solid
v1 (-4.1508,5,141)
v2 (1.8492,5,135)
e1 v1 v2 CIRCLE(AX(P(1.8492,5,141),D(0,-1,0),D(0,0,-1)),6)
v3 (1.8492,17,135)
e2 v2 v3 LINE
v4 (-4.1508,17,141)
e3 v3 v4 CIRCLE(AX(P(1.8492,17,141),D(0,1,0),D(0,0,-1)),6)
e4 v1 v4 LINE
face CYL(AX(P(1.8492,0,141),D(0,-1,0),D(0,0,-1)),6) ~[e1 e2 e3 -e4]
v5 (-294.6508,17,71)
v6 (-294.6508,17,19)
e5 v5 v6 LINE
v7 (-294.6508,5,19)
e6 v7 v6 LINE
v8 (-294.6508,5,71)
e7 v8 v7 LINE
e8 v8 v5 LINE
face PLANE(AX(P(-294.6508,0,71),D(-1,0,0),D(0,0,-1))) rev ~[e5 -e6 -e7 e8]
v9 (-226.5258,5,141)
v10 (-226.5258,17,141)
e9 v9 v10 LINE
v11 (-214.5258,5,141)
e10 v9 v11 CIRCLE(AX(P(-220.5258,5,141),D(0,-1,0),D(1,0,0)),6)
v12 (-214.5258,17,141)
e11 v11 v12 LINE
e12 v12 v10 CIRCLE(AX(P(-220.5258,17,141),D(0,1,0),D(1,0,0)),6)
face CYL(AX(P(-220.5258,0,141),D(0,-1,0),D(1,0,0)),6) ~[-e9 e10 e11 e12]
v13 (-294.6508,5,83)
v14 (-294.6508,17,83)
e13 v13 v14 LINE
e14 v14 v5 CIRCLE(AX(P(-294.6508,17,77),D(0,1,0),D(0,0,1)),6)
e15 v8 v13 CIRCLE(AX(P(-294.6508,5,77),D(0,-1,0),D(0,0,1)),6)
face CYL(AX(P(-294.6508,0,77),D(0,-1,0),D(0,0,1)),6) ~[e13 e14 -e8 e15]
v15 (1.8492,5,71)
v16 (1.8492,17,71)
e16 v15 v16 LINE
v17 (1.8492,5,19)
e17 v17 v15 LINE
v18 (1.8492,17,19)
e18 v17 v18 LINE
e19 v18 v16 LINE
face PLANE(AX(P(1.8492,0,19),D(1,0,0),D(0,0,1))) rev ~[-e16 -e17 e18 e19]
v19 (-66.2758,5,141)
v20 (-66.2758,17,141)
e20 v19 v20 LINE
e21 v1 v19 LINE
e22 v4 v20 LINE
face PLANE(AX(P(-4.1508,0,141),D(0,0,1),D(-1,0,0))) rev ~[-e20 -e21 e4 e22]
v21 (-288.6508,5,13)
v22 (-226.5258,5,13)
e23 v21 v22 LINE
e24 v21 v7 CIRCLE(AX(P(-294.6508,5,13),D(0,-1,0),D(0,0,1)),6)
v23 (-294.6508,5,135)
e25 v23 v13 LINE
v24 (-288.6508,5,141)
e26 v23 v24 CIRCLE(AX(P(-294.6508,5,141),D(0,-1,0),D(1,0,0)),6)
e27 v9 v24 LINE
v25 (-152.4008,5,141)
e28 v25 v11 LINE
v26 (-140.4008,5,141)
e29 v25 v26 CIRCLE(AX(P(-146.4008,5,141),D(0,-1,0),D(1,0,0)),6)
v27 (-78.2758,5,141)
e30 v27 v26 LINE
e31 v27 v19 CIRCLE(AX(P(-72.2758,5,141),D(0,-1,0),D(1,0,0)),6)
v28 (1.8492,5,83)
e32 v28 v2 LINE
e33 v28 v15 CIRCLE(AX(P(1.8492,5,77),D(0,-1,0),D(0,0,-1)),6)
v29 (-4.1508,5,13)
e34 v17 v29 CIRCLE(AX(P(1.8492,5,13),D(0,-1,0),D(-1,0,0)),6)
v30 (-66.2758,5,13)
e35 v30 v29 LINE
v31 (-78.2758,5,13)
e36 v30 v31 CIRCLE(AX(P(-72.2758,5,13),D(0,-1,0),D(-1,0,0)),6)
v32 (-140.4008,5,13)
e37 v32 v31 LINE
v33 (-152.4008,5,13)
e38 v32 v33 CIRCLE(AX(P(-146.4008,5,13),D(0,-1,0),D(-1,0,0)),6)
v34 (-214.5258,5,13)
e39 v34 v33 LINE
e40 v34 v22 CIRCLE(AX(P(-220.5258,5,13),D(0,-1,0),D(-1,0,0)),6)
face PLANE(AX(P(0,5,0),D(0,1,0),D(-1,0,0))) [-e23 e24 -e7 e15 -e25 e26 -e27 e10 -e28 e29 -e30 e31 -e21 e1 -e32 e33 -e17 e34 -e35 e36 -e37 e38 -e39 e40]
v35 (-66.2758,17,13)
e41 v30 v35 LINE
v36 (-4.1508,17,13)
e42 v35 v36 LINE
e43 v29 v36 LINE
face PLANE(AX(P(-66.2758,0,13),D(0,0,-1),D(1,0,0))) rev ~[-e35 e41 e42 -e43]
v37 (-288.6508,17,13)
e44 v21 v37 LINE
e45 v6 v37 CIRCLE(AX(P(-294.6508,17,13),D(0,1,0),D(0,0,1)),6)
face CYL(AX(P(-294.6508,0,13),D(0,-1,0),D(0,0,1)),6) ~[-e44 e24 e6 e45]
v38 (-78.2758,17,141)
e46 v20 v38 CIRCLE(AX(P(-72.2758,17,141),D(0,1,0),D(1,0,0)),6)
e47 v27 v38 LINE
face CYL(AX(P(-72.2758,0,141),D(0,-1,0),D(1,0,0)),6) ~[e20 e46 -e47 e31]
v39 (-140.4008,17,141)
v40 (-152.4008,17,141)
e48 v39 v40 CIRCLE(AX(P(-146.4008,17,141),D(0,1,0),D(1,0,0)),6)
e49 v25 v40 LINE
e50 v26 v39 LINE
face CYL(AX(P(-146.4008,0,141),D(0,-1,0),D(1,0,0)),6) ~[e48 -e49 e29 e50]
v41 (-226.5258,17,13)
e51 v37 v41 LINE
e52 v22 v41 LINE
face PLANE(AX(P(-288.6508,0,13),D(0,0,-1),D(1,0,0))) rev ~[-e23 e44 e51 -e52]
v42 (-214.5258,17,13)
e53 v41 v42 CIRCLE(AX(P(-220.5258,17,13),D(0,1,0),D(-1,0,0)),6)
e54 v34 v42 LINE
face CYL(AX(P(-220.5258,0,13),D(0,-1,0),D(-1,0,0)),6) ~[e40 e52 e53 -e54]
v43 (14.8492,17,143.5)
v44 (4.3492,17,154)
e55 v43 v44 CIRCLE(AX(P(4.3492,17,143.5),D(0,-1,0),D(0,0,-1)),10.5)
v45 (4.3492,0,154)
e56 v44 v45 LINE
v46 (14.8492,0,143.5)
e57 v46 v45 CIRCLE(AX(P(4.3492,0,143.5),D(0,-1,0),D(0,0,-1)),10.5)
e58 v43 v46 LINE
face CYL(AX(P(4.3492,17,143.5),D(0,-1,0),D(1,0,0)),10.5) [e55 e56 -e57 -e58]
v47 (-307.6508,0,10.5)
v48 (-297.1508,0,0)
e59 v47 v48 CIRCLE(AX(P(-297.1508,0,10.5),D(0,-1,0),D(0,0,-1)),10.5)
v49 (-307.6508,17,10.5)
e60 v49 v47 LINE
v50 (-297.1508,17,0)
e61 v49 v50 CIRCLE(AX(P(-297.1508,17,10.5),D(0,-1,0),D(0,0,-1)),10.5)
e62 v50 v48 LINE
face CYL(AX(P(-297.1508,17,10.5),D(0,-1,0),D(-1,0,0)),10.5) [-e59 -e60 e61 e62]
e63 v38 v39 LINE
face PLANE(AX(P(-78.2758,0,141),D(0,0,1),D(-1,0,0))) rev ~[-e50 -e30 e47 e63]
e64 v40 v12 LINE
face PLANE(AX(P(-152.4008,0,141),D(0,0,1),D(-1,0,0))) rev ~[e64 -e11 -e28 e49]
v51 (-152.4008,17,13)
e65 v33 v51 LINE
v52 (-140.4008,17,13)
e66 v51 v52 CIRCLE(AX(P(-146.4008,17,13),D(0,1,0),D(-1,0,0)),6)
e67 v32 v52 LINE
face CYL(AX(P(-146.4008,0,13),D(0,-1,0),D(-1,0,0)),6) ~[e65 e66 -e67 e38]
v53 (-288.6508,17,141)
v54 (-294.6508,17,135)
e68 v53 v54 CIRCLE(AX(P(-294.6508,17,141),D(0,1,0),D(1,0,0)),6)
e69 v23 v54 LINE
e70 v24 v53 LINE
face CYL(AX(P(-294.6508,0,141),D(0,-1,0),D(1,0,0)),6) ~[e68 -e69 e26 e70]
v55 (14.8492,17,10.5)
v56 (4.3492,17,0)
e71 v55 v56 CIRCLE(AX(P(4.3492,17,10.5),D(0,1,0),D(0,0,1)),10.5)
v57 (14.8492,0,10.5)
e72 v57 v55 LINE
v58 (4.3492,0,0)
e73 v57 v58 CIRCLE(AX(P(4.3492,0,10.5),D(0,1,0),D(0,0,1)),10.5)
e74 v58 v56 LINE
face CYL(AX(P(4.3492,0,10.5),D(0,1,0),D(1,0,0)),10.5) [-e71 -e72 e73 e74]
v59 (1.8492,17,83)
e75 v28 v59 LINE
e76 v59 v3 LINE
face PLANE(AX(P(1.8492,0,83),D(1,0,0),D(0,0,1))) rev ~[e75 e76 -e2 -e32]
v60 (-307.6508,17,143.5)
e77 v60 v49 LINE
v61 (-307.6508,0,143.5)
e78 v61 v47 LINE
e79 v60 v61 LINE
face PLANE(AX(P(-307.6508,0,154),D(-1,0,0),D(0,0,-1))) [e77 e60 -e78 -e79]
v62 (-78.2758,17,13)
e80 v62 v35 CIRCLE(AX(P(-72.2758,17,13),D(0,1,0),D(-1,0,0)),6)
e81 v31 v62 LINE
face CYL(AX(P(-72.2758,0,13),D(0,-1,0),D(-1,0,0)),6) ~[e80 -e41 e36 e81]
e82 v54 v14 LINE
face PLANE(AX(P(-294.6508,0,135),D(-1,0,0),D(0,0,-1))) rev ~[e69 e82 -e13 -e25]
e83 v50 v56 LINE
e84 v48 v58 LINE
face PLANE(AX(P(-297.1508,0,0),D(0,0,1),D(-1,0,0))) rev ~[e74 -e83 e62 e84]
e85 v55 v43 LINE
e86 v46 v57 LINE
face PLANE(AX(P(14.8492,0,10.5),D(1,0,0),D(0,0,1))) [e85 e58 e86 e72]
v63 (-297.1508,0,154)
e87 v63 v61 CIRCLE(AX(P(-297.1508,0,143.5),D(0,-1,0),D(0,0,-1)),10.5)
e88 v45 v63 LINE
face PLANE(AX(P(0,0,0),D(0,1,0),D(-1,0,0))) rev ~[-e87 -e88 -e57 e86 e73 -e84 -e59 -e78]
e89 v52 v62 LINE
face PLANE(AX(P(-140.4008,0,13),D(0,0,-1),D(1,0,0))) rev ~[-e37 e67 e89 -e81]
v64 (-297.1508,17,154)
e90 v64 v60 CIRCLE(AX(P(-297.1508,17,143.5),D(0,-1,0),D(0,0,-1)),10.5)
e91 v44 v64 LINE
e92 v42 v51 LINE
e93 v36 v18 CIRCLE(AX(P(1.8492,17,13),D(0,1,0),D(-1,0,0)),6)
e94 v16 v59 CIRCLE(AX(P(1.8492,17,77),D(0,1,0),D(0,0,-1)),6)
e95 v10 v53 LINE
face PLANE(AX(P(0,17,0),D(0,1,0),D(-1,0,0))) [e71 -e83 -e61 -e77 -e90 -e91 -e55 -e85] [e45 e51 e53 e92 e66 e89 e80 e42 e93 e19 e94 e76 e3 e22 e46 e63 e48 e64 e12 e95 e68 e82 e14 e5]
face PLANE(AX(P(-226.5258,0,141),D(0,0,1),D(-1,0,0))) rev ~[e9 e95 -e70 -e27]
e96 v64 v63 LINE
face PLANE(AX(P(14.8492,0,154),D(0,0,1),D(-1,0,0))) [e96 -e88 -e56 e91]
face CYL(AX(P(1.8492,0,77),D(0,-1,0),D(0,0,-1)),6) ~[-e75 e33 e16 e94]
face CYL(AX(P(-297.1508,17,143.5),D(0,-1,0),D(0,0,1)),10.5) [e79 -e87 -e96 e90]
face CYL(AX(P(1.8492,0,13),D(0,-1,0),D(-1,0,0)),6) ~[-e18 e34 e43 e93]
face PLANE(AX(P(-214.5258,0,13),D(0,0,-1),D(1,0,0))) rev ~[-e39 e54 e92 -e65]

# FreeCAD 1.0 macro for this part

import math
import FreeCAD as App
import Part
import Sketcher


def edges_at(feature, points):
    """Names of the edges that pass closest to the given points."""
    edges = feature.Shape.Edges
    near = lambda p: min(range(len(edges)), key=lambda i: edges[i].distToShape(Part.Vertex(*p))[0])
    return sorted({f"Edge{near(p) + 1}" for p in points})

doc = App.newDocument("Part")
body = doc.addObject("PartDesign::Body", "Body")

sketch1 = body.newObject("Sketcher::SketchObject", "Sketch")
sketch1.AttachmentSupport = (doc.getObject("XZ_Plane"), [""])
sketch1.MapMode = "FlatFace"
sketch1.addGeometry([
    Part.LineSegment(App.Vector(15, 154, 0), App.Vector(15, 0, 0)),
    Part.LineSegment(App.Vector(15, 0, 0), App.Vector(-308, 0, 0)),
    Part.LineSegment(App.Vector(-308, 0, 0), App.Vector(-308, 154, 0)),
    Part.LineSegment(App.Vector(-308, 154, 0), App.Vector(15, 154, 0)),
    Part.LineSegment(App.Vector(-295, 71, 0), App.Vector(-295, 19, 0)),
    Part.ArcOfCircle(Part.Circle(App.Vector(-295, 13, 0), App.Vector(0, 0, 1), 6), math.radians(0), math.radians(90)),
    Part.LineSegment(App.Vector(-289, 13, 0), App.Vector(-227, 13, 0)),
    Part.ArcOfCircle(Part.Circle(App.Vector(-221, 13, 0), App.Vector(0, 0, 1), 6), math.radians(0), math.radians(180)),
    Part.LineSegment(App.Vector(-215, 13, 0), App.Vector(-152, 13, 0)),
    Part.ArcOfCircle(Part.Circle(App.Vector(-146, 13, 0), App.Vector(0, 0, 1), 6), math.radians(0), math.radians(180)),
    Part.LineSegment(App.Vector(-140, 13, 0), App.Vector(-78, 13, 0)),
    Part.ArcOfCircle(Part.Circle(App.Vector(-72, 13, 0), App.Vector(0, 0, 1), 6), math.radians(0), math.radians(180)),
    Part.LineSegment(App.Vector(-66, 13, 0), App.Vector(-4, 13, 0)),
    Part.ArcOfCircle(Part.Circle(App.Vector(2, 13, 0), App.Vector(0, 0, 1), 6), math.radians(90), math.radians(180)),
    Part.LineSegment(App.Vector(2, 19, 0), App.Vector(2, 71, 0)),
    Part.ArcOfCircle(Part.Circle(App.Vector(2, 77, 0), App.Vector(0, 0, 1), 6), math.radians(90), math.radians(270)),
    Part.LineSegment(App.Vector(2, 83, 0), App.Vector(2, 135, 0)),
    Part.ArcOfCircle(Part.Circle(App.Vector(2, 141, 0), App.Vector(0, 0, 1), 6), math.radians(180), math.radians(270)),
    Part.LineSegment(App.Vector(-4, 141, 0), App.Vector(-66, 141, 0)),
    Part.ArcOfCircle(Part.Circle(App.Vector(-72, 141, 0), App.Vector(0, 0, 1), 6), math.radians(180), math.radians(360)),
    Part.LineSegment(App.Vector(-78, 141, 0), App.Vector(-140, 141, 0)),
    Part.ArcOfCircle(Part.Circle(App.Vector(-146, 141, 0), App.Vector(0, 0, 1), 6), math.radians(180), math.radians(360)),
    Part.LineSegment(App.Vector(-152, 141, 0), App.Vector(-215, 141, 0)),
    Part.ArcOfCircle(Part.Circle(App.Vector(-221, 141, 0), App.Vector(0, 0, 1), 6), math.radians(180), math.radians(360)),
    Part.LineSegment(App.Vector(-227, 141, 0), App.Vector(-289, 141, 0)),
    Part.ArcOfCircle(Part.Circle(App.Vector(-295, 141, 0), App.Vector(0, 0, 1), 6), math.radians(-90), math.radians(0)),
    Part.LineSegment(App.Vector(-295, 135, 0), App.Vector(-295, 83, 0)),
    Part.ArcOfCircle(Part.Circle(App.Vector(-295, 77, 0), App.Vector(0, 0, 1), 6), math.radians(-90), math.radians(90)),
], False)
sketch1.addConstraint([
    Sketcher.Constraint("Coincident", 0, 2, 1, 1),
    Sketcher.Constraint("Coincident", 1, 2, 2, 1),
    Sketcher.Constraint("Coincident", 2, 2, 3, 1),
    Sketcher.Constraint("Coincident", 3, 2, 0, 1),
    Sketcher.Constraint("Coincident", 4, 2, 5, 2),
    Sketcher.Constraint("Coincident", 5, 1, 6, 1),
    Sketcher.Constraint("Coincident", 6, 2, 7, 2),
    Sketcher.Constraint("Coincident", 7, 1, 8, 1),
    Sketcher.Constraint("Coincident", 8, 2, 9, 2),
    Sketcher.Constraint("Coincident", 9, 1, 10, 1),
    Sketcher.Constraint("Coincident", 10, 2, 11, 2),
    Sketcher.Constraint("Coincident", 11, 1, 12, 1),
    Sketcher.Constraint("Coincident", 12, 2, 13, 2),
    Sketcher.Constraint("Coincident", 13, 1, 14, 1),
    Sketcher.Constraint("Coincident", 14, 2, 15, 2),
    Sketcher.Constraint("Coincident", 15, 1, 16, 1),
    Sketcher.Constraint("Coincident", 16, 2, 17, 2),
    Sketcher.Constraint("Coincident", 17, 1, 18, 1),
    Sketcher.Constraint("Coincident", 18, 2, 19, 2),
    Sketcher.Constraint("Coincident", 19, 1, 20, 1),
    Sketcher.Constraint("Coincident", 20, 2, 21, 2),
    Sketcher.Constraint("Coincident", 21, 1, 22, 1),
    Sketcher.Constraint("Coincident", 22, 2, 23, 2),
    Sketcher.Constraint("Coincident", 23, 1, 24, 1),
    Sketcher.Constraint("Coincident", 24, 2, 25, 2),
    Sketcher.Constraint("Coincident", 25, 1, 26, 1),
    Sketcher.Constraint("Coincident", 26, 2, 27, 2),
    Sketcher.Constraint("Coincident", 27, 1, 4, 1),
    Sketcher.Constraint("Vertical", 0),
    Sketcher.Constraint("Horizontal", 1),
    Sketcher.Constraint("Vertical", 2),
    Sketcher.Constraint("Horizontal", 3),
    Sketcher.Constraint("Vertical", 4),
    Sketcher.Constraint("Horizontal", 6),
    Sketcher.Constraint("Horizontal", 8),
    Sketcher.Constraint("Horizontal", 10),
    Sketcher.Constraint("Horizontal", 12),
    Sketcher.Constraint("Vertical", 14),
    Sketcher.Constraint("Vertical", 16),
    Sketcher.Constraint("Horizontal", 18),
    Sketcher.Constraint("Horizontal", 20),
    Sketcher.Constraint("Horizontal", 22),
    Sketcher.Constraint("Horizontal", 24),
    Sketcher.Constraint("Vertical", 26),
    Sketcher.Constraint("Equal", 5, 7),
    Sketcher.Constraint("Equal", 7, 9),
    Sketcher.Constraint("Equal", 9, 11),
    Sketcher.Constraint("Equal", 11, 13),
    Sketcher.Constraint("Equal", 13, 15),
    Sketcher.Constraint("Equal", 15, 17),
    Sketcher.Constraint("Equal", 17, 19),
    Sketcher.Constraint("Equal", 19, 21),
    Sketcher.Constraint("Equal", 21, 23),
    Sketcher.Constraint("Equal", 23, 25),
    Sketcher.Constraint("Equal", 25, 27),
    Sketcher.Constraint("PointOnObject", 0, 2, -1),
    Sketcher.Constraint("Horizontal", 5, 3, 7, 3),
    Sketcher.Constraint("Horizontal", 7, 3, 9, 3),
    Sketcher.Constraint("Horizontal", 9, 3, 11, 3),
    Sketcher.Constraint("Horizontal", 11, 3, 13, 3),
    Sketcher.Constraint("Horizontal", 17, 3, 19, 3),
    Sketcher.Constraint("Horizontal", 19, 3, 21, 3),
    Sketcher.Constraint("Horizontal", 21, 3, 23, 3),
    Sketcher.Constraint("Horizontal", 23, 3, 25, 3),
    Sketcher.Constraint("Horizontal", 15, 3, 27, 3),
    Sketcher.Constraint("Horizontal", 13, 3, 5, 1),
    Sketcher.Constraint("Horizontal", 6, 2, 7, 1),
    Sketcher.Constraint("Horizontal", 8, 2, 9, 1),
    Sketcher.Constraint("Horizontal", 10, 2, 11, 1),
    Sketcher.Constraint("Horizontal", 25, 3, 17, 1),
    Sketcher.Constraint("Horizontal", 18, 2, 19, 1),
    Sketcher.Constraint("Horizontal", 20, 2, 21, 1),
    Sketcher.Constraint("Horizontal", 22, 2, 23, 1),
    Sketcher.Constraint("Vertical", 13, 3, 15, 3),
    Sketcher.Constraint("Vertical", 15, 3, 17, 3),
    Sketcher.Constraint("Vertical", 11, 3, 19, 3),
    Sketcher.Constraint("Vertical", 9, 3, 21, 3),
    Sketcher.Constraint("Vertical", 7, 3, 23, 3),
    Sketcher.Constraint("Vertical", 5, 3, 25, 3),
    Sketcher.Constraint("Vertical", 25, 3, 27, 3),
    Sketcher.Constraint("Vertical", 27, 3, 4, 2),
    Sketcher.Constraint("Vertical", 17, 3, 13, 1),
    Sketcher.Constraint("Vertical", 14, 2, 15, 1),
    Sketcher.Constraint("Vertical", 4, 2, 25, 1),
    Sketcher.Constraint("Equal", 6, 8),
    Sketcher.Constraint("Equal", 8, 10),
    Sketcher.Constraint("Equal", 10, 12),
    Sketcher.Constraint("Equal", 14, 16),
    Sketcher.Constraint("Radius", 5, 6.0),
    Sketcher.Constraint("DistanceY", 0, 2, 0, 1, 154.0),
    Sketcher.Constraint("DistanceX", 1, 2, 1, 1, 322.5),
    Sketcher.Constraint("DistanceY", -1, 1, 5, 3, 13.0),
    Sketcher.Constraint("DistanceY", 13, 3, 17, 3, 128.0),
    Sketcher.Constraint("DistanceX", 13, 3, 0, 2, 13.0),
    Sketcher.Constraint("DistanceX", 1, 2, 5, 3, 13.0),
    Sketcher.Constraint("DistanceX", 5, 3, -1, 1, 294.6508),
])
pad1 = body.newObject("PartDesign::Pad", "Pad")
pad1.Profile = sketch1
pad1.Length = 17
pad1.Reversed = True

sketch2 = body.newObject("Sketcher::SketchObject", "Sketch001")
sketch2.AttachmentSupport = (doc.getObject("XZ_Plane"), [""])
sketch2.MapMode = "FlatFace"
sketch2.addGeometry([
    Part.LineSegment(App.Vector(15, 0, 0), App.Vector(-308, 0, 0)),
    Part.LineSegment(App.Vector(-308, 0, 0), App.Vector(-308, 154, 0)),
    Part.LineSegment(App.Vector(-308, 154, 0), App.Vector(15, 154, 0)),
    Part.LineSegment(App.Vector(15, 154, 0), App.Vector(15, 0, 0)),
], False)
sketch2.addConstraint([
    Sketcher.Constraint("Coincident", 0, 2, 1, 1),
    Sketcher.Constraint("Coincident", 1, 2, 2, 1),
    Sketcher.Constraint("Coincident", 2, 2, 3, 1),
    Sketcher.Constraint("Coincident", 3, 2, 0, 1),
    Sketcher.Constraint("Horizontal", 0),
    Sketcher.Constraint("Vertical", 1),
    Sketcher.Constraint("Horizontal", 2),
    Sketcher.Constraint("Vertical", 3),
    Sketcher.Constraint("PointOnObject", 0, 2, -1),
    Sketcher.Constraint("DistanceY", 1, 1, 1, 2, 154.0),
    Sketcher.Constraint("DistanceX", 0, 2, 0, 1, 322.5),
    Sketcher.Constraint("DistanceX", 0, 2, -1, 1, 307.6508),
])
pad2 = body.newObject("PartDesign::Pad", "Pad001")
pad2.Profile = sketch2
pad2.Length = 5
pad2.Reversed = True
doc.recompute()

fillet = body.newObject("PartDesign::Fillet", "Fillet")
fillet.Base = (pad2, edges_at(pad2, [
    (-307.651, 8.5, 0),
    (14.849, 8.5, 0),
    (-307.651, 8.5, 154),
    (14.849, 8.5, 154),
]))
fillet.Radius = 10.5

doc.recompute()
